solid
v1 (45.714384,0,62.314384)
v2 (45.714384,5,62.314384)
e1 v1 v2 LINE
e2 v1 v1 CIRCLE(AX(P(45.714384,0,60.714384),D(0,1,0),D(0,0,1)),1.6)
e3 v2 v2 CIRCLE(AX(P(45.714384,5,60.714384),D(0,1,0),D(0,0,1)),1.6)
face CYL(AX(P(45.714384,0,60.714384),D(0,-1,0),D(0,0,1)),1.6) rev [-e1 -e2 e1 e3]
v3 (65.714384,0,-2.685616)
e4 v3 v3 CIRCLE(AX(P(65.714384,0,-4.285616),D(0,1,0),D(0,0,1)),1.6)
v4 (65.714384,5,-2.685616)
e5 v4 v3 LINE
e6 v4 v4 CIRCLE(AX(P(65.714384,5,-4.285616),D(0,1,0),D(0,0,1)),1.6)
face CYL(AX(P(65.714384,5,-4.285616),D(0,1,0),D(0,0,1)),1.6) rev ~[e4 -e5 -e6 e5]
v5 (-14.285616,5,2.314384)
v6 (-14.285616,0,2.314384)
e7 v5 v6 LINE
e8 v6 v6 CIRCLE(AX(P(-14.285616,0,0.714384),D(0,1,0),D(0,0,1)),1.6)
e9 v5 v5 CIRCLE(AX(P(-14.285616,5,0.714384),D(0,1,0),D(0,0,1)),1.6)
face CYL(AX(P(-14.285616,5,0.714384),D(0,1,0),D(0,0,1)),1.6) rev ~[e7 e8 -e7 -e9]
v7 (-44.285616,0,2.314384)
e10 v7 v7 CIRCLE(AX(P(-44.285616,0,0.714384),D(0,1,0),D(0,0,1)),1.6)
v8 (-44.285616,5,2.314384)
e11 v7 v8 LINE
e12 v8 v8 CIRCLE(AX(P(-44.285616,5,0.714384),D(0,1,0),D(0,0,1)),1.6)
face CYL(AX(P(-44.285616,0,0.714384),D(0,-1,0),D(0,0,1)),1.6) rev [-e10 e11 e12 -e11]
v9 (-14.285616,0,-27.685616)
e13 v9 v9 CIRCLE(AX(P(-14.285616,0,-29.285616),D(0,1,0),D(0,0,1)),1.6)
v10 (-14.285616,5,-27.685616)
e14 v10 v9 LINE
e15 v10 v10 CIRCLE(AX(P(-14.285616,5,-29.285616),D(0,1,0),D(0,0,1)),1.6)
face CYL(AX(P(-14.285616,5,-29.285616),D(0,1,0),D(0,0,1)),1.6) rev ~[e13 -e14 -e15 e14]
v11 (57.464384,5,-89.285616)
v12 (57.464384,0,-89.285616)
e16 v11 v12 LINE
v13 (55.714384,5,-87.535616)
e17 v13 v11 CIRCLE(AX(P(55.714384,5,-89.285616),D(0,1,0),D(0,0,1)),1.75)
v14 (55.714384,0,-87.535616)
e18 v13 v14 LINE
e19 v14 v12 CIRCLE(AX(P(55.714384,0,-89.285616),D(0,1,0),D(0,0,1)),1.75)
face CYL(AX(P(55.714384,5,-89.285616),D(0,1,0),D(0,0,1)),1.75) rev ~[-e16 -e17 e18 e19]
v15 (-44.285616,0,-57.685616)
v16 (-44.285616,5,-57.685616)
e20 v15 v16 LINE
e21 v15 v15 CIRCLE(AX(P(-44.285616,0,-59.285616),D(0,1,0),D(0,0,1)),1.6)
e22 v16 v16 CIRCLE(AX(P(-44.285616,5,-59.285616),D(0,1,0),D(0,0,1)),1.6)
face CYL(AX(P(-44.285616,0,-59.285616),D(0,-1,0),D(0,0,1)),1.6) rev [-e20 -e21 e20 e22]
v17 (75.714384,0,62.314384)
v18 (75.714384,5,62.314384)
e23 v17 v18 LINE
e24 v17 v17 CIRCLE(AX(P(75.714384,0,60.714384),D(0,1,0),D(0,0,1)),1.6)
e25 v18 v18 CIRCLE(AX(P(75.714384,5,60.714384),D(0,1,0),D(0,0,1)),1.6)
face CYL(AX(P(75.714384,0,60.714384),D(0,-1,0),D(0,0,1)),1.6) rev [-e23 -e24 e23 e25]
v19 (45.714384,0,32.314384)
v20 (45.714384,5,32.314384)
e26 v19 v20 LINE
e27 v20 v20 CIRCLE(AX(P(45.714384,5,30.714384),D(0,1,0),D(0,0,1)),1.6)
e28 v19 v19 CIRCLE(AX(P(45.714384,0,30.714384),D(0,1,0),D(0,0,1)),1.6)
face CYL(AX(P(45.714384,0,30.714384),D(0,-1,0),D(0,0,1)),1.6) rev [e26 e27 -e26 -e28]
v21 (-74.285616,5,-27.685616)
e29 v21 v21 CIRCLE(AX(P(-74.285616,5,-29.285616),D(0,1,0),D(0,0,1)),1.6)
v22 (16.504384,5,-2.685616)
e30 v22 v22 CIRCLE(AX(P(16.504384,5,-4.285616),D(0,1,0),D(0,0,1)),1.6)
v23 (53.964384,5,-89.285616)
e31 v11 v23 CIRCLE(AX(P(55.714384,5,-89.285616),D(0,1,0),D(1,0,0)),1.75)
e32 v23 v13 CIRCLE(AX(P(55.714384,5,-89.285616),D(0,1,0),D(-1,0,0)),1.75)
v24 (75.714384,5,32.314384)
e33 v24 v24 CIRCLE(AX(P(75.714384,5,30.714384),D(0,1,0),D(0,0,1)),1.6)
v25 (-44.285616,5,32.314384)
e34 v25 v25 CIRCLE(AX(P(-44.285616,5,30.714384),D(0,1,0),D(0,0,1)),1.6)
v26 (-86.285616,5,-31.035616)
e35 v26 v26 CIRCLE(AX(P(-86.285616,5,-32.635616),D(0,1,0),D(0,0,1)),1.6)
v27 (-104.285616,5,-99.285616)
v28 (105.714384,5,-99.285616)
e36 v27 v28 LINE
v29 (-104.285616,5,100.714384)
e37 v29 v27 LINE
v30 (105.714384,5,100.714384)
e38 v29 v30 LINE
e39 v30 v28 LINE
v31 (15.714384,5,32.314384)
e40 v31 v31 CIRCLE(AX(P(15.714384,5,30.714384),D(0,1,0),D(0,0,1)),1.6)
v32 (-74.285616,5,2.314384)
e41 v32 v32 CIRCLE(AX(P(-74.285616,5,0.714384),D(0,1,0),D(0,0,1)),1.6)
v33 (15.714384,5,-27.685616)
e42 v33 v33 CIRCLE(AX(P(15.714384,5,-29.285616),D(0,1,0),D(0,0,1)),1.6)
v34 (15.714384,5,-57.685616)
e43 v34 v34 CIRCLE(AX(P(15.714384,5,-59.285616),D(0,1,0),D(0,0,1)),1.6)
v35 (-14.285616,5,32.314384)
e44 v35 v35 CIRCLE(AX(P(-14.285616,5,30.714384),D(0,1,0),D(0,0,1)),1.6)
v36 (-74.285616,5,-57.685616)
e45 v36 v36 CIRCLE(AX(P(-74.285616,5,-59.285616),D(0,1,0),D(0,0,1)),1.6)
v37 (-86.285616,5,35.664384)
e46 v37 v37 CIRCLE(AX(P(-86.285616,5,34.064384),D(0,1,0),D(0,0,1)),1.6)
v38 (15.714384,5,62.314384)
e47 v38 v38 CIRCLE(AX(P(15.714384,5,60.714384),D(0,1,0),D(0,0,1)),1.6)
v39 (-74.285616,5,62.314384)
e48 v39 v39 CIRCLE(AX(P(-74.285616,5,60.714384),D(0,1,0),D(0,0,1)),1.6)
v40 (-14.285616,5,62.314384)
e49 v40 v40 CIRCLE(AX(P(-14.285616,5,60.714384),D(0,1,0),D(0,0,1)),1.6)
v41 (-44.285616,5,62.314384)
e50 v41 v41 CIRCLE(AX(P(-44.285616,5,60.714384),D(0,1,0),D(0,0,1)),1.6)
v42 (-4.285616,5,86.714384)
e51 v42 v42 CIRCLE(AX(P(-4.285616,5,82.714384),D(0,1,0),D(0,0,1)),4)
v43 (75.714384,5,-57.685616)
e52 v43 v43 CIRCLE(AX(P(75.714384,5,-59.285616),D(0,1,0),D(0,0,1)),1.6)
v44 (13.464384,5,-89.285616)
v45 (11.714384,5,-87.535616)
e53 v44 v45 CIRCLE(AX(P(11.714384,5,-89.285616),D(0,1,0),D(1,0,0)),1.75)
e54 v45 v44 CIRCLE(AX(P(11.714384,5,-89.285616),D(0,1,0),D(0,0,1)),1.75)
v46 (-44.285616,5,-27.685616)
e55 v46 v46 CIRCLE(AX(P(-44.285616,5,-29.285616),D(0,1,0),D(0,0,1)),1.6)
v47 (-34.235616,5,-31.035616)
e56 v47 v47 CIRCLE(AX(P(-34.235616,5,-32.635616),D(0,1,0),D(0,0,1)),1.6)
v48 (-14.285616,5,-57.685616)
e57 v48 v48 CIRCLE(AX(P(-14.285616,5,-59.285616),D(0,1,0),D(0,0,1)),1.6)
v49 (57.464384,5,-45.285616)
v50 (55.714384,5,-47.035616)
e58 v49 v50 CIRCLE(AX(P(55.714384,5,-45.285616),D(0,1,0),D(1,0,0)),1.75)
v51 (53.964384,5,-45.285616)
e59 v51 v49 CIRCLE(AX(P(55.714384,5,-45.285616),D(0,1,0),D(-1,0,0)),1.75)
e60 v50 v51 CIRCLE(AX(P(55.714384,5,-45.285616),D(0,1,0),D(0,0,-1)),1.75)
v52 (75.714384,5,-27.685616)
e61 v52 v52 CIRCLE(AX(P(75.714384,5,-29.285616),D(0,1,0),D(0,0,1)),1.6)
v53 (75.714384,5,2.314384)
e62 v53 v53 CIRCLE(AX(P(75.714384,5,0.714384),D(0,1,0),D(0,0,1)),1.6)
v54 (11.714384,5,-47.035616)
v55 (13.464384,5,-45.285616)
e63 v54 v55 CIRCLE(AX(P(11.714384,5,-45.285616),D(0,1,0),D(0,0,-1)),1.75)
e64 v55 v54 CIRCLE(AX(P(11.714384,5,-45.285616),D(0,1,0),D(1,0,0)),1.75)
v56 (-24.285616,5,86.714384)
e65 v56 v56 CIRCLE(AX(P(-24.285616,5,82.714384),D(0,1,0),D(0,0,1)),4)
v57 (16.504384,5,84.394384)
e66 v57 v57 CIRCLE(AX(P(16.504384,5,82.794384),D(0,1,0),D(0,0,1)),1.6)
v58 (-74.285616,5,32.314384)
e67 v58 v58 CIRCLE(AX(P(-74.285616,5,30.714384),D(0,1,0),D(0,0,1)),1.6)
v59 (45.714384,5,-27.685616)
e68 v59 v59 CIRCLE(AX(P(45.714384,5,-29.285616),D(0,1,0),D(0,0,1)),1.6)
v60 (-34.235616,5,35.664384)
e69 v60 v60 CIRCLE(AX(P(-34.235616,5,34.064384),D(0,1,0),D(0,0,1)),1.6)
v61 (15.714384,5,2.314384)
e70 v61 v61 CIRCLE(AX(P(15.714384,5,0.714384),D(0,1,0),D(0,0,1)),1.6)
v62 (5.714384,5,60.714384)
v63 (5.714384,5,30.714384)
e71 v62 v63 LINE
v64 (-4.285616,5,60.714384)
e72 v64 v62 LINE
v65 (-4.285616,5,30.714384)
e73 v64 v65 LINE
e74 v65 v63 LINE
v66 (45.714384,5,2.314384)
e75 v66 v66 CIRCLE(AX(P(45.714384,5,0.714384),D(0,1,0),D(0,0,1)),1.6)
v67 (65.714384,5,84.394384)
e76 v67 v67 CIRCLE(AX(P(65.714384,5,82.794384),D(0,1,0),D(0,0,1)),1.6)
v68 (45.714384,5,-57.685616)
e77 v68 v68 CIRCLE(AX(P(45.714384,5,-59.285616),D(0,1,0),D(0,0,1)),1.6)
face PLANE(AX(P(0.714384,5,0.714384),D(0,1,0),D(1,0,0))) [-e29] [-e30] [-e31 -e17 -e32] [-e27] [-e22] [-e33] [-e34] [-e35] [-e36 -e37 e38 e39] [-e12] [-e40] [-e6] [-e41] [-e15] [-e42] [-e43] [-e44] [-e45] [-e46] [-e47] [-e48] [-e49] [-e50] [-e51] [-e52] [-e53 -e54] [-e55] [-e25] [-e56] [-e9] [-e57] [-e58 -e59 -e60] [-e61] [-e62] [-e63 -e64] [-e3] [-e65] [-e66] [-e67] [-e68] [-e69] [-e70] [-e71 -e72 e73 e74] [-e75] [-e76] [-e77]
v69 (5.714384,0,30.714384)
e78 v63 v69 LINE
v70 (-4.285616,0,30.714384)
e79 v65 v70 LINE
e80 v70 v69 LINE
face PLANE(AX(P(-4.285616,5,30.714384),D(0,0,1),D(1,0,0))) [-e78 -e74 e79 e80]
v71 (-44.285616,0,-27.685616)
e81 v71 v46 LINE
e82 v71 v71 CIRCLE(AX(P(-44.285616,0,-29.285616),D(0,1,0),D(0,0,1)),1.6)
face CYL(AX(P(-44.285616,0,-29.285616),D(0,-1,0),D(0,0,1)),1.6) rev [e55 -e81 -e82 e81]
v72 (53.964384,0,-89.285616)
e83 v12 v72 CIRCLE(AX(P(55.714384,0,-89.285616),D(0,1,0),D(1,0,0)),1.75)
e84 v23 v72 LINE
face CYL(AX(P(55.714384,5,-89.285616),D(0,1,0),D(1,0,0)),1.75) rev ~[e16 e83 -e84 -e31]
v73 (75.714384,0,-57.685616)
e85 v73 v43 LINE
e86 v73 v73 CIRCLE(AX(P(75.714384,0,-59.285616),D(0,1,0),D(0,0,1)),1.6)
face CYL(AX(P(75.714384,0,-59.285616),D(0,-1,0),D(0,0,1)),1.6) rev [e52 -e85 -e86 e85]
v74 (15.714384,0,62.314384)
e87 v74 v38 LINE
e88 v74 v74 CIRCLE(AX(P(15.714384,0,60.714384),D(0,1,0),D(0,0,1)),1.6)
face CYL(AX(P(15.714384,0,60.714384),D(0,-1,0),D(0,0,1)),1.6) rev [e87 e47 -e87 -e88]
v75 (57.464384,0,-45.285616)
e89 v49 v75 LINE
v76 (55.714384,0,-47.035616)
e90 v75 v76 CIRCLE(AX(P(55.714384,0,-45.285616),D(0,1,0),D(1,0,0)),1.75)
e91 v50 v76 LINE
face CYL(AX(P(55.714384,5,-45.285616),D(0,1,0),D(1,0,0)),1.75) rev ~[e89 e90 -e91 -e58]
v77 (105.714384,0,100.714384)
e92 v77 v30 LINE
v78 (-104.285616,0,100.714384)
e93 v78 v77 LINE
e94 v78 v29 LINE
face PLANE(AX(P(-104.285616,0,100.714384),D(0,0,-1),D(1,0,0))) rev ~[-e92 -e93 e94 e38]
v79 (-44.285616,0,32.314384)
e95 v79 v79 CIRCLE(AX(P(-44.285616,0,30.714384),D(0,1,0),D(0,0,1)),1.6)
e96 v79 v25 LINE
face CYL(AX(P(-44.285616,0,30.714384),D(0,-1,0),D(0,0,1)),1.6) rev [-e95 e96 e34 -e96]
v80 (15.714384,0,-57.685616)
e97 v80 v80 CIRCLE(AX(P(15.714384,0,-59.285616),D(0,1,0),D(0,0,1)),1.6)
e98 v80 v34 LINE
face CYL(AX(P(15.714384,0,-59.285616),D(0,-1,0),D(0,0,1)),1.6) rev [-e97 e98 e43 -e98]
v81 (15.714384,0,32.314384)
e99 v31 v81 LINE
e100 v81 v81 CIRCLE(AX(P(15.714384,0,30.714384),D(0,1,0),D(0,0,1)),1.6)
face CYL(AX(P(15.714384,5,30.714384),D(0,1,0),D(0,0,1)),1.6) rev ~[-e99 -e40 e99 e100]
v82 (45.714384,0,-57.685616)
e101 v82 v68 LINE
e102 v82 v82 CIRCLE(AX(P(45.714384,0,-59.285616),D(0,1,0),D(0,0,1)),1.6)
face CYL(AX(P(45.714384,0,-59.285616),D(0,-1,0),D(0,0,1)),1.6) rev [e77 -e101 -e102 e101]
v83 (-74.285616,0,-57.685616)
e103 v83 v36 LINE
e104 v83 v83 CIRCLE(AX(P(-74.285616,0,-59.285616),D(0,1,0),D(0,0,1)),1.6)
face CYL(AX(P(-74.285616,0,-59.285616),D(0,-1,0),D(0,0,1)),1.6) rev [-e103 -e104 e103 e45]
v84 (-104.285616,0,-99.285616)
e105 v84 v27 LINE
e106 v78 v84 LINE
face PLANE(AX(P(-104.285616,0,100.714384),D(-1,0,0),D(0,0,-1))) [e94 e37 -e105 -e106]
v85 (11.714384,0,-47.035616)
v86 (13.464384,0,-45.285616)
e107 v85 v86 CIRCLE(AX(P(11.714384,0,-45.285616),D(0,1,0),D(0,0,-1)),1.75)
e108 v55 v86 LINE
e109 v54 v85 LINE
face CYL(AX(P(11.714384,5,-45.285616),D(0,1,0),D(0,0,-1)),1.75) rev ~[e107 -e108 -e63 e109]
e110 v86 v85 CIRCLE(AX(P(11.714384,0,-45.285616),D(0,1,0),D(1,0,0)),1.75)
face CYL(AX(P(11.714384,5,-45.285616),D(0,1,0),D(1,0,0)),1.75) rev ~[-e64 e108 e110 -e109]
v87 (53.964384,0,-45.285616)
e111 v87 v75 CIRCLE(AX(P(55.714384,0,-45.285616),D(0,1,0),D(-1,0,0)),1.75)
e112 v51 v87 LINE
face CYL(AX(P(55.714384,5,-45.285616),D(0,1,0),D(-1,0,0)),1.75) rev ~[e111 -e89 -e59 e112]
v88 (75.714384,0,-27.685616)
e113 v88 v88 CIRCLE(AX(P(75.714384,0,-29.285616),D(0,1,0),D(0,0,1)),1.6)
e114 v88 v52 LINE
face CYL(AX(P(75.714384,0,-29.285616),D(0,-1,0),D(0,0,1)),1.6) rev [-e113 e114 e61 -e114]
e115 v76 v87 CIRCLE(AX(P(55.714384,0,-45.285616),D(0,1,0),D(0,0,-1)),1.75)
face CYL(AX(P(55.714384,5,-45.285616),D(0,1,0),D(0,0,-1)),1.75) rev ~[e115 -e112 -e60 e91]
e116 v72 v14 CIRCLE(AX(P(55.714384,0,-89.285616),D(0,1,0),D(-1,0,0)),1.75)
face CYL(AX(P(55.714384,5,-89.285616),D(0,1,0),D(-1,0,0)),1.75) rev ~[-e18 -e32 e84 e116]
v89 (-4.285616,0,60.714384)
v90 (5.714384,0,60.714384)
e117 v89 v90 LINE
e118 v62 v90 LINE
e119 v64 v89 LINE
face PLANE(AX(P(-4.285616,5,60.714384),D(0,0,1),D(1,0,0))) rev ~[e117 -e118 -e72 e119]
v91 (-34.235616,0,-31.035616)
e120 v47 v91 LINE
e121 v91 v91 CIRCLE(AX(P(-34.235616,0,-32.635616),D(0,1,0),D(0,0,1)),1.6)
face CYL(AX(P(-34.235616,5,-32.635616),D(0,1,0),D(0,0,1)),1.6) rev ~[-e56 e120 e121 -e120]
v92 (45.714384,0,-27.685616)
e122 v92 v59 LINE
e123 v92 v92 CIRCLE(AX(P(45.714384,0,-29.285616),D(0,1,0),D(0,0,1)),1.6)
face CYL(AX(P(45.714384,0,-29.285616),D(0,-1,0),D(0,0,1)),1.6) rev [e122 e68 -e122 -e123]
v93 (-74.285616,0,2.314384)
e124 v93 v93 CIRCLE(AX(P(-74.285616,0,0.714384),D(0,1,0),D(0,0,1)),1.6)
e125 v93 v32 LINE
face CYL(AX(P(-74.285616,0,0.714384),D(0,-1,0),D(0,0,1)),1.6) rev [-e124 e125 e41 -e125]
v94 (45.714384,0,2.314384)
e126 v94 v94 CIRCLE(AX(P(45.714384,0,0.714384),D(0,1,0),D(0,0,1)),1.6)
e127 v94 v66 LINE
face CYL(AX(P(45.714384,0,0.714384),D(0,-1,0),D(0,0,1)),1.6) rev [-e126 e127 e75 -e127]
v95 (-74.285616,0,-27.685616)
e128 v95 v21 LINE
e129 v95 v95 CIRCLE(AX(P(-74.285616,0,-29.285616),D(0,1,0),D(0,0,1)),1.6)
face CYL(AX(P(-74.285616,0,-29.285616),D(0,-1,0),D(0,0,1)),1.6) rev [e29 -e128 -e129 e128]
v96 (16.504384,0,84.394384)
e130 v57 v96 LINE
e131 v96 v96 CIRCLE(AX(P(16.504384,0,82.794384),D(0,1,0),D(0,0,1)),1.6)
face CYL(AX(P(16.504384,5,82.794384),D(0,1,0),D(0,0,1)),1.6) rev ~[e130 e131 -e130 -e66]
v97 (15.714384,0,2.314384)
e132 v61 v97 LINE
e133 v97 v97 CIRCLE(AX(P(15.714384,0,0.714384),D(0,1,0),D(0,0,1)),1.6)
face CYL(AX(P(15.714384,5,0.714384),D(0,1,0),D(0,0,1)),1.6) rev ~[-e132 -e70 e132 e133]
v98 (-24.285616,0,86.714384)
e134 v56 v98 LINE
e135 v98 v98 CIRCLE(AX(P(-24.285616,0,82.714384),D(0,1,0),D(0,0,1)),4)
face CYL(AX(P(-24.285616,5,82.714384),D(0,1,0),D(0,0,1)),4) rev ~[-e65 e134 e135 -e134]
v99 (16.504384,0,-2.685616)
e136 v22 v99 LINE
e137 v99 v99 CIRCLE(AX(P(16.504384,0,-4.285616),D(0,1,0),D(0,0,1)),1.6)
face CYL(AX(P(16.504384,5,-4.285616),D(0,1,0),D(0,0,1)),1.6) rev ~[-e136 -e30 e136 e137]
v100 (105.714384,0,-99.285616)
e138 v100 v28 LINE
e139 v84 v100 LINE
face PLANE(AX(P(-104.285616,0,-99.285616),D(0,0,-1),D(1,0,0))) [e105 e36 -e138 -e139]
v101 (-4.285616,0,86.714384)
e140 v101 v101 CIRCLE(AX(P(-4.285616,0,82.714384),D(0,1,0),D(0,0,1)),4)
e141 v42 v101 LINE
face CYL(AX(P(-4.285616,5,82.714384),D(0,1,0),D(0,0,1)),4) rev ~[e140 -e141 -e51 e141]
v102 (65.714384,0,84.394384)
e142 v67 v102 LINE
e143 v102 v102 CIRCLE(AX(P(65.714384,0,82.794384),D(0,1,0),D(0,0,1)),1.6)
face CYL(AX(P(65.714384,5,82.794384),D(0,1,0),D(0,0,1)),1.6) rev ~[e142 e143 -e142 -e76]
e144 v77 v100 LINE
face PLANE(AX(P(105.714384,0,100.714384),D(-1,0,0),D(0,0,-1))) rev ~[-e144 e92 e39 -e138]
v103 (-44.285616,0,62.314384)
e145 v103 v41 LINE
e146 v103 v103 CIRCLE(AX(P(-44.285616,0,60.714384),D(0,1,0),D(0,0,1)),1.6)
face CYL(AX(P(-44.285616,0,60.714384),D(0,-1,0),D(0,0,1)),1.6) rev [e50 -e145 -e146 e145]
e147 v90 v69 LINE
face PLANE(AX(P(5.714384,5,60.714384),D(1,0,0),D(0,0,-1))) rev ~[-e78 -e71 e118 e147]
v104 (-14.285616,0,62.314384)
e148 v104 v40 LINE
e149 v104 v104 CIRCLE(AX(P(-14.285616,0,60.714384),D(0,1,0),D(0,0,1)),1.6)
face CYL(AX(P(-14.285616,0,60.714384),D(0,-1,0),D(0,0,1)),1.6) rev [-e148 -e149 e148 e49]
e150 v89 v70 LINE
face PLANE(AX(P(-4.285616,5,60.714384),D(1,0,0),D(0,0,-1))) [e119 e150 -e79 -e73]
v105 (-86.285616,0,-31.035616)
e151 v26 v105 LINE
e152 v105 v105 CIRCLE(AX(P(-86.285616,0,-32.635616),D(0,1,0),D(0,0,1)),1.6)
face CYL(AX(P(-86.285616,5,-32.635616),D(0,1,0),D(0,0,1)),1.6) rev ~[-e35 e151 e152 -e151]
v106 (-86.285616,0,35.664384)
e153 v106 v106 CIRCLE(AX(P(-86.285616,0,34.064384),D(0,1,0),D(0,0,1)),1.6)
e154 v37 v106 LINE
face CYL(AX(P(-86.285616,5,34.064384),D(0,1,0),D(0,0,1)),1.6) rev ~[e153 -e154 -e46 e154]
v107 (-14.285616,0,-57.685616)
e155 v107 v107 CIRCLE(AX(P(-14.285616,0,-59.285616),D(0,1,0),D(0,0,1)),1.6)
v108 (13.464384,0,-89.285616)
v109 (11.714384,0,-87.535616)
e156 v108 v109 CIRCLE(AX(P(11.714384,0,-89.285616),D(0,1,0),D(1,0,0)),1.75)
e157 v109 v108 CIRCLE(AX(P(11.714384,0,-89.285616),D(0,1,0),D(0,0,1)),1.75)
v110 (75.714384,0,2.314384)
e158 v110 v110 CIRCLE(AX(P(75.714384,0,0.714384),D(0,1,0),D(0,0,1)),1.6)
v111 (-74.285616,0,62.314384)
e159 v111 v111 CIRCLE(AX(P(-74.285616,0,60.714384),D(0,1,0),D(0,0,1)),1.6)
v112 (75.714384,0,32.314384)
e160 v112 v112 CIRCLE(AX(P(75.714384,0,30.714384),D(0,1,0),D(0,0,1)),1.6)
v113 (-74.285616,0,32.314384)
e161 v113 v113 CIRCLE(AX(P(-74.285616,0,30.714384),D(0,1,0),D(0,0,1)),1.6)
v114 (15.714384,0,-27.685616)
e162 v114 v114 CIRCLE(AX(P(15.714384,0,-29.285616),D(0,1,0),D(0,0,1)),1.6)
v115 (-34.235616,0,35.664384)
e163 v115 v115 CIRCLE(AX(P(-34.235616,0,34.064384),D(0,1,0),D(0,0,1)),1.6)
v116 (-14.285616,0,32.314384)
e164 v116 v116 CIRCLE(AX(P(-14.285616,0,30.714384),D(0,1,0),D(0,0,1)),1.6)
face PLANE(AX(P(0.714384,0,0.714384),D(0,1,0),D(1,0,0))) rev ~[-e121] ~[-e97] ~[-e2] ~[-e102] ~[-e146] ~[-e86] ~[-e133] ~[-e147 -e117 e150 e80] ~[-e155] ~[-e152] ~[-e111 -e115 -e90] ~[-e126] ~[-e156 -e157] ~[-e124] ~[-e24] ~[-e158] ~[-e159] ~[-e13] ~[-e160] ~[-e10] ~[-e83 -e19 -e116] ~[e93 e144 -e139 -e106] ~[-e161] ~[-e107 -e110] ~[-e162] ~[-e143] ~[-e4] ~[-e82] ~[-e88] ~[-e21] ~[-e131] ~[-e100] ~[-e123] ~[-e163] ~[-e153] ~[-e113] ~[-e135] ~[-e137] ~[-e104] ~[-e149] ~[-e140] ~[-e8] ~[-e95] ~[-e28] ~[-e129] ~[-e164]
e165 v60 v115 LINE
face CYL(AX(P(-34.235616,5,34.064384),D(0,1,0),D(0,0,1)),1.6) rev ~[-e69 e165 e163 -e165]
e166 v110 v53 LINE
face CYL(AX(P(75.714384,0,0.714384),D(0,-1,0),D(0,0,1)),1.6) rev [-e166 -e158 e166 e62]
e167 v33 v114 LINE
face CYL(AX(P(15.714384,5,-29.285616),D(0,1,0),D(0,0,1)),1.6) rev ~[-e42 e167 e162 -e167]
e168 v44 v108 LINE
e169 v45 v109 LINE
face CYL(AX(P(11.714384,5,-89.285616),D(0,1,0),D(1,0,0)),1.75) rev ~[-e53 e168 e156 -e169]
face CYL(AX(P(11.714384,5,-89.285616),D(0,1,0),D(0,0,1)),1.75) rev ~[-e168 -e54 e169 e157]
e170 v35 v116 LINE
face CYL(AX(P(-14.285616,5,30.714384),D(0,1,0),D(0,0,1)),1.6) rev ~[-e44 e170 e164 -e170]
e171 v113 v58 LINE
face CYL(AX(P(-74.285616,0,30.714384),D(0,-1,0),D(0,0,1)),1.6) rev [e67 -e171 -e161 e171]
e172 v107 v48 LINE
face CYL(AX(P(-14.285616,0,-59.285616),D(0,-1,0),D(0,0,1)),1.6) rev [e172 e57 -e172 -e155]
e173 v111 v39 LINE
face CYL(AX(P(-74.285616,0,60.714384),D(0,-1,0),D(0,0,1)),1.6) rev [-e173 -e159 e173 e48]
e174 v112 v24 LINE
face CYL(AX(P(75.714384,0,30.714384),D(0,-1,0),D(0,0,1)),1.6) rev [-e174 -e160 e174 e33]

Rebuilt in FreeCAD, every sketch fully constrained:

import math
import FreeCAD as App
import Part
import Sketcher

V = App.Vector


def add_polygon(sketch, points):
    """Adds a closed chain of lines whose ends are joined by coincident constraints."""
    first, n = sketch.GeometryCount, len(points)
    for a, b in zip(points, points[1:] + points[:1]):
        sketch.addGeometry(Part.LineSegment(App.Vector(*a, 0), App.Vector(*b, 0)), False)
    for i in range(n):
        sketch.addConstraint(Sketcher.Constraint("Coincident", first + i, 2, first + (i + 1) % n, 1))

doc = App.newDocument("Part")
body = doc.addObject("PartDesign::Body", "Body")

sketch1 = body.newObject("Sketcher::SketchObject", "Sketch")
sketch1.AttachmentSupport = (doc.getObject("XZ_Plane"), [""])
sketch1.MapMode = "FlatFace"
add_polygon(sketch1, [(-104.3, -99.3), (-104.3, 100.7), (105.7, 100.7), (105.7, -99.3)])
sketch1.addGeometry(Part.Circle(V(-74.3, 60.7, 0), V(0, 0, 1), 1.6), False)
sketch1.addGeometry(Part.Circle(V(-44.3, 60.7, 0), V(0, 0, 1), 1.6), False)
sketch1.addGeometry(Part.Circle(V(-14.3, 60.7, 0), V(0, 0, 1), 1.6), False)
sketch1.addGeometry(Part.Circle(V(-74.3, 30.7, 0), V(0, 0, 1), 1.6), False)
sketch1.addGeometry(Part.Circle(V(-44.3, 30.7, 0), V(0, 0, 1), 1.6), False)
sketch1.addGeometry(Part.Circle(V(-74.3, 0.7, 0), V(0, 0, 1), 1.6), False)
sketch1.addGeometry(Part.Circle(V(-44.3, 0.7, 0), V(0, 0, 1), 1.6), False)
sketch1.addGeometry(Part.Circle(V(15.7, 60.7, 0), V(0, 0, 1), 1.6), False)
sketch1.addGeometry(Part.Circle(V(45.7, 60.7, 0), V(0, 0, 1), 1.6), False)
sketch1.addGeometry(Part.Circle(V(75.7, 60.7, 0), V(0, 0, 1), 1.6), False)
sketch1.addGeometry(Part.Circle(V(45.7, 30.7, 0), V(0, 0, 1), 1.6), False)
sketch1.addGeometry(Part.Circle(V(75.7, 30.7, 0), V(0, 0, 1), 1.6), False)
sketch1.addGeometry(Part.Circle(V(45.7, 0.7, 0), V(0, 0, 1), 1.6), False)
sketch1.addGeometry(Part.Circle(V(75.7, 0.7, 0), V(0, 0, 1), 1.6), False)
sketch1.addGeometry(Part.Circle(V(-74.3, -29.3, 0), V(0, 0, 1), 1.6), False)
sketch1.addGeometry(Part.Circle(V(-44.3, -29.3, 0), V(0, 0, 1), 1.6), False)
sketch1.addGeometry(Part.Circle(V(-74.3, -59.3, 0), V(0, 0, 1), 1.6), False)
sketch1.addGeometry(Part.Circle(V(-44.3, -59.3, 0), V(0, 0, 1), 1.6), False)
sketch1.addGeometry(Part.Circle(V(-14.3, -59.3, 0), V(0, 0, 1), 1.6), False)
sketch1.addGeometry(Part.Circle(V(45.7, -29.3, 0), V(0, 0, 1), 1.6), False)
sketch1.addGeometry(Part.Circle(V(75.7, -29.3, 0), V(0, 0, 1), 1.6), False)
sketch1.addGeometry(Part.Circle(V(15.7, -59.3, 0), V(0, 0, 1), 1.6), False)
sketch1.addGeometry(Part.Circle(V(45.7, -59.3, 0), V(0, 0, 1), 1.6), False)
sketch1.addGeometry(Part.Circle(V(75.7, -59.3, 0), V(0, 0, 1), 1.6), False)
sketch1.addConstraint(Sketcher.Constraint("Vertical", 0))
sketch1.addConstraint(Sketcher.Constraint("Horizontal", 1))
sketch1.addConstraint(Sketcher.Constraint("Vertical", 2))
sketch1.addConstraint(Sketcher.Constraint("Horizontal", 3))
sketch1.addConstraint(Sketcher.Constraint("Equal", 4, 5))
sketch1.addConstraint(Sketcher.Constraint("Equal", 5, 6))
sketch1.addConstraint(Sketcher.Constraint("Equal", 6, 7))
sketch1.addConstraint(Sketcher.Constraint("Equal", 7, 8))
sketch1.addConstraint(Sketcher.Constraint("Equal", 8, 9))
sketch1.addConstraint(Sketcher.Constraint("Equal", 9, 10))
sketch1.addConstraint(Sketcher.Constraint("Equal", 10, 11))
sketch1.addConstraint(Sketcher.Constraint("Equal", 11, 12))
sketch1.addConstraint(Sketcher.Constraint("Equal", 12, 13))
sketch1.addConstraint(Sketcher.Constraint("Equal", 13, 14))
sketch1.addConstraint(Sketcher.Constraint("Equal", 14, 15))
sketch1.addConstraint(Sketcher.Constraint("Equal", 15, 16))
sketch1.addConstraint(Sketcher.Constraint("Equal", 16, 17))
sketch1.addConstraint(Sketcher.Constraint("Equal", 17, 18))
sketch1.addConstraint(Sketcher.Constraint("Equal", 18, 19))
sketch1.addConstraint(Sketcher.Constraint("Equal", 19, 20))
sketch1.addConstraint(Sketcher.Constraint("Equal", 20, 21))
sketch1.addConstraint(Sketcher.Constraint("Equal", 21, 22))
sketch1.addConstraint(Sketcher.Constraint("Equal", 22, 23))
sketch1.addConstraint(Sketcher.Constraint("Equal", 23, 24))
sketch1.addConstraint(Sketcher.Constraint("Equal", 24, 25))
sketch1.addConstraint(Sketcher.Constraint("Equal", 25, 26))
sketch1.addConstraint(Sketcher.Constraint("Equal", 26, 27))
sketch1.addConstraint(Sketcher.Constraint("Horizontal", 4, 3, 5, 3))
sketch1.addConstraint(Sketcher.Constraint("Horizontal", 5, 3, 6, 3))
sketch1.addConstraint(Sketcher.Constraint("Horizontal", 7, 3, 8, 3))
sketch1.addConstraint(Sketcher.Constraint("Horizontal", 9, 3, 10, 3))
sketch1.addConstraint(Sketcher.Constraint("Horizontal", 6, 3, 11, 3))
sketch1.addConstraint(Sketcher.Constraint("Horizontal", 11, 3, 12, 3))
sketch1.addConstraint(Sketcher.Constraint("Horizontal", 12, 3, 13, 3))
sketch1.addConstraint(Sketcher.Constraint("Horizontal", 8, 3, 14, 3))
sketch1.addConstraint(Sketcher.Constraint("Horizontal", 14, 3, 15, 3))
sketch1.addConstraint(Sketcher.Constraint("Horizontal", 10, 3, 16, 3))
sketch1.addConstraint(Sketcher.Constraint("Horizontal", 16, 3, 17, 3))
sketch1.addConstraint(Sketcher.Constraint("Horizontal", 18, 3, 19, 3))
sketch1.addConstraint(Sketcher.Constraint("Horizontal", 20, 3, 21, 3))
sketch1.addConstraint(Sketcher.Constraint("Horizontal", 21, 3, 22, 3))
sketch1.addConstraint(Sketcher.Constraint("Horizontal", 19, 3, 23, 3))
sketch1.addConstraint(Sketcher.Constraint("Horizontal", 23, 3, 24, 3))
sketch1.addConstraint(Sketcher.Constraint("Horizontal", 22, 3, 25, 3))
sketch1.addConstraint(Sketcher.Constraint("Horizontal", 25, 3, 26, 3))
sketch1.addConstraint(Sketcher.Constraint("Horizontal", 26, 3, 27, 3))
sketch1.addConstraint(Sketcher.Constraint("Vertical", 4, 3, 7, 3))
sketch1.addConstraint(Sketcher.Constraint("Vertical", 5, 3, 8, 3))
sketch1.addConstraint(Sketcher.Constraint("Vertical", 7, 3, 9, 3))
sketch1.addConstraint(Sketcher.Constraint("Vertical", 8, 3, 10, 3))
sketch1.addConstraint(Sketcher.Constraint("Vertical", 12, 3, 14, 3))
sketch1.addConstraint(Sketcher.Constraint("Vertical", 13, 3, 15, 3))
sketch1.addConstraint(Sketcher.Constraint("Vertical", 14, 3, 16, 3))
sketch1.addConstraint(Sketcher.Constraint("Vertical", 15, 3, 17, 3))
sketch1.addConstraint(Sketcher.Constraint("Vertical", 9, 3, 18, 3))
sketch1.addConstraint(Sketcher.Constraint("Vertical", 10, 3, 19, 3))
sketch1.addConstraint(Sketcher.Constraint("Vertical", 18, 3, 20, 3))
sketch1.addConstraint(Sketcher.Constraint("Vertical", 19, 3, 21, 3))
sketch1.addConstraint(Sketcher.Constraint("Vertical", 6, 3, 22, 3))
sketch1.addConstraint(Sketcher.Constraint("Vertical", 16, 3, 23, 3))
sketch1.addConstraint(Sketcher.Constraint("Vertical", 17, 3, 24, 3))
sketch1.addConstraint(Sketcher.Constraint("Vertical", 11, 3, 25, 3))
sketch1.addConstraint(Sketcher.Constraint("Vertical", 23, 3, 26, 3))
sketch1.addConstraint(Sketcher.Constraint("Vertical", 24, 3, 27, 3))
sketch1.addConstraint(Sketcher.Constraint("Diameter", 4, 3.2))
sketch1.addConstraint(Sketcher.Constraint("DistanceX", 1, 1, 1, 2, 210.0))
sketch1.addConstraint(Sketcher.Constraint("DistanceY", 0, 1, 0, 2, 200.0))
sketch1.addConstraint(Sketcher.Constraint("DistanceX", 4, 3, 5, 3, 30.0))
sketch1.addConstraint(Sketcher.Constraint("DistanceX", 5, 3, 6, 3, 30.0))
sketch1.addConstraint(Sketcher.Constraint("DistanceY", 7, 3, 4, 3, 30.0))
sketch1.addConstraint(Sketcher.Constraint("DistanceY", 9, 3, 7, 3, 30.0))
sketch1.addConstraint(Sketcher.Constraint("DistanceX", 6, 3, 11, 3, 30.0))
sketch1.addConstraint(Sketcher.Constraint("DistanceX", 11, 3, 12, 3, 30.0))
sketch1.addConstraint(Sketcher.Constraint("DistanceX", 12, 3, 13, 3, 30.0))
sketch1.addConstraint(Sketcher.Constraint("DistanceY", 18, 3, 9, 3, 30.0))
sketch1.addConstraint(Sketcher.Constraint("DistanceY", 20, 3, 18, 3, 30.0))
sketch1.addConstraint(Sketcher.Constraint("DistanceX", 0, 2, 4, 3, 30.0))
sketch1.addConstraint(Sketcher.Constraint("DistanceY", 4, 3, 0, 2, 40.0))
sketch1.addConstraint(Sketcher.Constraint("DistanceX", 4, 3, -1, 1, 74.285616))
sketch1.addConstraint(Sketcher.Constraint("DistanceY", -1, 1, 4, 3, 60.714384))
pad1 = body.newObject("PartDesign::Pad", "Pad")
pad1.Profile = sketch1
pad1.Length = 5
pad1.Reversed = True

sketch2 = body.newObject("Sketcher::SketchObject", "Sketch001")
sketch2.AttachmentSupport = (doc.getObject("XZ_Plane"), [""])
sketch2.MapMode = "FlatFace"
sketch2.AttachmentOffset = App.Placement(V(0, 0, -5), App.Rotation())
sketch2.addGeometry(Part.Circle(V(-86.3, 34.1, 0), V(0, 0, 1), 1.6), False)
sketch2.addGeometry(Part.Circle(V(-34.2, -32.6, 0), V(0, 0, 1), 1.6), False)
sketch2.addGeometry(Part.Circle(V(-34.2, 34.1, 0), V(0, 0, 1), 1.6), False)
sketch2.addGeometry(Part.Circle(V(-86.3, -32.6, 0), V(0, 0, 1), 1.6), False)
sketch2.addGeometry(Part.Circle(V(16.5, 82.8, 0), V(0, 0, 1), 1.6), False)
sketch2.addGeometry(Part.Circle(V(65.7, -4.3, 0), V(0, 0, 1), 1.6), False)
sketch2.addGeometry(Part.Circle(V(65.7, 82.8, 0), V(0, 0, 1), 1.6), False)
sketch2.addGeometry(Part.Circle(V(16.5, -4.3, 0), V(0, 0, 1), 1.6), False)
sketch2.addConstraint(Sketcher.Constraint("Equal", 0, 1))
sketch2.addConstraint(Sketcher.Constraint("Equal", 1, 2))
sketch2.addConstraint(Sketcher.Constraint("Equal", 2, 3))
sketch2.addConstraint(Sketcher.Constraint("Equal", 3, 4))
sketch2.addConstraint(Sketcher.Constraint("Equal", 4, 5))
sketch2.addConstraint(Sketcher.Constraint("Equal", 5, 6))
sketch2.addConstraint(Sketcher.Constraint("Equal", 6, 7))
sketch2.addConstraint(Sketcher.Constraint("Horizontal", 0, 3, 2, 3))
sketch2.addConstraint(Sketcher.Constraint("Horizontal", 1, 3, 3, 3))
sketch2.addConstraint(Sketcher.Constraint("Horizontal", 4, 3, 6, 3))
sketch2.addConstraint(Sketcher.Constraint("Horizontal", 5, 3, 7, 3))
sketch2.addConstraint(Sketcher.Constraint("Vertical", 1, 3, 2, 3))
sketch2.addConstraint(Sketcher.Constraint("Vertical", 0, 3, 3, 3))
sketch2.addConstraint(Sketcher.Constraint("Vertical", 5, 3, 6, 3))
sketch2.addConstraint(Sketcher.Constraint("Vertical", 4, 3, 7, 3))
sketch2.addConstraint(Sketcher.Constraint("Diameter", 0, 3.2))
sketch2.addConstraint(Sketcher.Constraint("DistanceX", 3, 3, 5, 3, 152.0))
sketch2.addConstraint(Sketcher.Constraint("DistanceY", 1, 3, 0, 3, 66.7))
sketch2.addConstraint(Sketcher.Constraint("DistanceX", 0, 3, 1, 3, 52.05))
sketch2.addConstraint(Sketcher.Constraint("DistanceX", 2, 3, 4, 3, 50.74))
sketch2.addConstraint(Sketcher.Constraint("DistanceY", 2, 3, 4, 3, 48.73))
sketch2.addConstraint(Sketcher.Constraint("DistanceY", 5, 3, 4, 3, 87.08))
sketch2.addConstraint(Sketcher.Constraint("DistanceX", 0, 3, -1, 1, 86.285616))
sketch2.addConstraint(Sketcher.Constraint("DistanceY", -1, 1, 0, 3, 34.064384))
pocket1 = body.newObject("PartDesign::Pocket", "Pocket")
pocket1.Profile = sketch2
pocket1.Length = 5
pocket1.Reversed = True

sketch3 = body.newObject("Sketcher::SketchObject", "Sketch002")
sketch3.AttachmentSupport = (doc.getObject("XZ_Plane"), [""])
sketch3.MapMode = "FlatFace"
sketch3.AttachmentOffset = App.Placement(V(0, 0, -5), App.Rotation())
sketch3.addGeometry(Part.Circle(V(65.7, 82.8, 0), V(0, 0, 1), 1.6), False)
sketch3.addGeometry(Part.Circle(V(-4.3, 82.7, 0), V(0, 0, 1), 4), False)
sketch3.addGeometry(Part.Circle(V(-24.3, 82.7, 0), V(0, 0, 1), 4), False)
sketch3.addConstraint(Sketcher.Constraint("Equal", 1, 2))
sketch3.addConstraint(Sketcher.Constraint("Horizontal", 1, 3, 2, 3))
sketch3.addConstraint(Sketcher.Constraint("Diameter", 1, 8.0))
sketch3.addConstraint(Sketcher.Constraint("Diameter", 0, 3.2))
sketch3.addConstraint(Sketcher.Constraint("DistanceX", 1, 3, 0, 3, 70.0))
sketch3.addConstraint(Sketcher.Constraint("DistanceX", 2, 3, 1, 3, 20.0))
sketch3.addConstraint(Sketcher.Constraint("DistanceY", 1, 3, 0, 3, 0.08))
sketch3.addConstraint(Sketcher.Constraint("DistanceX", -1, 1, 0, 3, 65.714384))
sketch3.addConstraint(Sketcher.Constraint("DistanceY", -1, 1, 0, 3, 82.794384))
pocket2 = body.newObject("PartDesign::Pocket", "Pocket001")
pocket2.Profile = sketch3
pocket2.Length = 5
pocket2.Reversed = True

sketch4 = body.newObject("Sketcher::SketchObject", "Sketch003")
sketch4.AttachmentSupport = (doc.getObject("XZ_Plane"), [""])
sketch4.MapMode = "FlatFace"
sketch4.AttachmentOffset = App.Placement(V(0, 0, -5), App.Rotation())
sketch4.addGeometry(Part.Circle(V(-14.3, -59.3, 0), V(0, 0, 1), 1.6), False)
sketch4.addGeometry(Part.Circle(V(15.7, -59.3, 0), V(0, 0, 1), 1.6), False)
sketch4.addGeometry(Part.Circle(V(-14.3, -29.3, 0), V(0, 0, 1), 1.6), False)
sketch4.addGeometry(Part.Circle(V(15.7, -29.3, 0), V(0, 0, 1), 1.6), False)
sketch4.addGeometry(Part.Circle(V(-14.3, 0.7, 0), V(0, 0, 1), 1.6), False)
sketch4.addGeometry(Part.Circle(V(15.7, 0.7, 0), V(0, 0, 1), 1.6), False)
sketch4.addGeometry(Part.Circle(V(-14.3, 30.7, 0), V(0, 0, 1), 1.6), False)
sketch4.addGeometry(Part.Circle(V(15.7, 30.7, 0), V(0, 0, 1), 1.6), False)
sketch4.addConstraint(Sketcher.Constraint("Equal", 0, 1))
sketch4.addConstraint(Sketcher.Constraint("Equal", 1, 2))
sketch4.addConstraint(Sketcher.Constraint("Equal", 2, 3))
sketch4.addConstraint(Sketcher.Constraint("Equal", 3, 4))
sketch4.addConstraint(Sketcher.Constraint("Equal", 4, 5))
sketch4.addConstraint(Sketcher.Constraint("Equal", 5, 6))
sketch4.addConstraint(Sketcher.Constraint("Equal", 6, 7))
sketch4.addConstraint(Sketcher.Constraint("Horizontal", 0, 3, 1, 3))
sketch4.addConstraint(Sketcher.Constraint("Horizontal", 2, 3, 3, 3))
sketch4.addConstraint(Sketcher.Constraint("Horizontal", 4, 3, 5, 3))
sketch4.addConstraint(Sketcher.Constraint("Horizontal", 6, 3, 7, 3))
sketch4.addConstraint(Sketcher.Constraint("Vertical", 0, 3, 2, 3))
sketch4.addConstraint(Sketcher.Constraint("Vertical", 1, 3, 3, 3))
sketch4.addConstraint(Sketcher.Constraint("Vertical", 2, 3, 4, 3))
sketch4.addConstraint(Sketcher.Constraint("Vertical", 3, 3, 5, 3))
sketch4.addConstraint(Sketcher.Constraint("Vertical", 4, 3, 6, 3))
sketch4.addConstraint(Sketcher.Constraint("Vertical", 5, 3, 7, 3))
sketch4.addConstraint(Sketcher.Constraint("Diameter", 0, 3.2))
sketch4.addConstraint(Sketcher.Constraint("DistanceX", 0, 3, 1, 3, 30.0))
sketch4.addConstraint(Sketcher.Constraint("DistanceY", 0, 3, 2, 3, 30.0))
sketch4.addConstraint(Sketcher.Constraint("DistanceY", 2, 3, 4, 3, 30.0))
sketch4.addConstraint(Sketcher.Constraint("DistanceY", 4, 3, 6, 3, 30.0))
sketch4.addConstraint(Sketcher.Constraint("DistanceX", 0, 3, -1, 1, 14.285616))
sketch4.addConstraint(Sketcher.Constraint("DistanceY", 0, 3, -1, 1, 59.285616))
pocket3 = body.newObject("PartDesign::Pocket", "Pocket002")
pocket3.Profile = sketch4
pocket3.Type = "ThroughAll"
pocket3.Reversed = True

sketch5 = body.newObject("Sketcher::SketchObject", "Sketch004")
sketch5.AttachmentSupport = (doc.getObject("XZ_Plane"), [""])
sketch5.MapMode = "FlatFace"
sketch5.AttachmentOffset = App.Placement(V(0, 0, -5), App.Rotation())
add_polygon(sketch5, [(-4, 31), (-4, 61), (6, 61), (6, 31)])
sketch5.addConstraint(Sketcher.Constraint("Vertical", 0))
sketch5.addConstraint(Sketcher.Constraint("Horizontal", 1))
sketch5.addConstraint(Sketcher.Constraint("Vertical", 2))
sketch5.addConstraint(Sketcher.Constraint("Horizontal", 3))
sketch5.addConstraint(Sketcher.Constraint("DistanceX", 1, 1, 1, 2, 10.0))
sketch5.addConstraint(Sketcher.Constraint("DistanceY", 0, 1, 0, 2, 30.0))
sketch5.addConstraint(Sketcher.Constraint("DistanceX", 0, 2, -1, 1, 4.285616))
sketch5.addConstraint(Sketcher.Constraint("DistanceY", -1, 1, 0, 2, 60.714384))
pocket4 = body.newObject("PartDesign::Pocket", "Pocket003")
pocket4.Profile = sketch5
pocket4.Type = "ThroughAll"
pocket4.Reversed = True

sketch6 = body.newObject("Sketcher::SketchObject", "Sketch005")
sketch6.AttachmentSupport = (doc.getObject("XZ_Plane"), [""])
sketch6.MapMode = "FlatFace"
sketch6.AttachmentOffset = App.Placement(V(0, 0, -5), App.Rotation())
sketch6.addGeometry(Part.ArcOfCircle(Part.Circle(V(11.7, -89.3, 0), V(0, 0, 1), 1.8), math.radians(90), math.radians(360)), False)
sketch6.addGeometry(Part.ArcOfCircle(Part.Circle(V(11.7, -89.3, 0), V(0, 0, 1), 1.8), math.radians(0), math.radians(90)), False)
sketch6.addGeometry(Part.ArcOfCircle(Part.Circle(V(11.7, -45.3, 0), V(0, 0, 1), 1.8), math.radians(-90), math.radians(0)), False)
sketch6.addGeometry(Part.ArcOfCircle(Part.Circle(V(11.7, -45.3, 0), V(0, 0, 1), 1.8), math.radians(0), math.radians(270)), False)
sketch6.addGeometry(Part.ArcOfCircle(Part.Circle(V(55.7, -45.3, 0), V(0, 0, 1), 1.8), math.radians(-90), math.radians(0)), False)
sketch6.addGeometry(Part.ArcOfCircle(Part.Circle(V(55.7, -45.3, 0), V(0, 0, 1), 1.8), math.radians(180), math.radians(270)), False)
sketch6.addGeometry(Part.ArcOfCircle(Part.Circle(V(55.7, -45.3, 0), V(0, 0, 1), 1.8), math.radians(0), math.radians(180)), False)
sketch6.addGeometry(Part.ArcOfCircle(Part.Circle(V(55.7, -89.3, 0), V(0, 0, 1), 1.8), math.radians(180), math.radians(360)), False)
sketch6.addGeometry(Part.ArcOfCircle(Part.Circle(V(55.7, -89.3, 0), V(0, 0, 1), 1.8), math.radians(90), math.radians(180)), False)
sketch6.addGeometry(Part.ArcOfCircle(Part.Circle(V(55.7, -89.3, 0), V(0, 0, 1), 1.8), math.radians(0), math.radians(90)), False)
sketch6.addConstraint(Sketcher.Constraint("Tangent", 0, 1, 1, 2))
sketch6.addConstraint(Sketcher.Constraint("Coincident", 1, 1, 0, 2))
sketch6.addConstraint(Sketcher.Constraint("Tangent", 2, 1, 3, 2))
sketch6.addConstraint(Sketcher.Constraint("Coincident", 3, 1, 2, 2))
sketch6.addConstraint(Sketcher.Constraint("Tangent", 4, 1, 5, 2))
sketch6.addConstraint(Sketcher.Constraint("Tangent", 5, 1, 6, 2))
sketch6.addConstraint(Sketcher.Constraint("Tangent", 6, 1, 4, 2))
sketch6.addConstraint(Sketcher.Constraint("Tangent", 7, 1, 8, 2))
sketch6.addConstraint(Sketcher.Constraint("Tangent", 8, 1, 9, 2))
sketch6.addConstraint(Sketcher.Constraint("Tangent", 9, 1, 7, 2))
sketch6.addConstraint(Sketcher.Constraint("Equal", 1, 2))
sketch6.addConstraint(Sketcher.Constraint("Equal", 3, 4))
sketch6.addConstraint(Sketcher.Constraint("Equal", 6, 7))
sketch6.addConstraint(Sketcher.Constraint("Horizontal", 3, 3, 4, 3))
sketch6.addConstraint(Sketcher.Constraint("Horizontal", 1, 3, 7, 3))
sketch6.addConstraint(Sketcher.Constraint("Horizontal", 9, 3, 1, 1))
sketch6.addConstraint(Sketcher.Constraint("Horizontal", 6, 3, 3, 1))
sketch6.addConstraint(Sketcher.Constraint("Horizontal", 3, 1, 5, 1))
sketch6.addConstraint(Sketcher.Constraint("Horizontal", 5, 1, 6, 1))
sketch6.addConstraint(Sketcher.Constraint("Horizontal", 1, 1, 7, 1))
sketch6.addConstraint(Sketcher.Constraint("Horizontal", 7, 1, 9, 1))
sketch6.addConstraint(Sketcher.Constraint("Vertical", 1, 3, 2, 3))
sketch6.addConstraint(Sketcher.Constraint("Vertical", 6, 3, 7, 3))
sketch6.addConstraint(Sketcher.Constraint("Vertical", 3, 3, 0, 1))
sketch6.addConstraint(Sketcher.Constraint("Vertical", 0, 1, 2, 1))
sketch6.addConstraint(Sketcher.Constraint("Vertical", 9, 3, 4, 1))
sketch6.addConstraint(Sketcher.Constraint("Vertical", 4, 1, 8, 1))
sketch6.addConstraint(Sketcher.Constraint("Radius", 0, 1.75))
sketch6.addConstraint(Sketcher.Constraint("DistanceY", 0, 3, 2, 3, 44.0))
sketch6.addConstraint(Sketcher.Constraint("DistanceX", 2, 3, 4, 3, 44.0))
sketch6.addConstraint(Sketcher.Constraint("DistanceX", -1, 1, 0, 3, 11.714384))
sketch6.addConstraint(Sketcher.Constraint("DistanceY", 0, 3, -1, 1, 89.285616))
pocket5 = body.newObject("PartDesign::Pocket", "Pocket004")
pocket5.Profile = sketch6
pocket5.Type = "ThroughAll"
pocket5.Reversed = True

doc.recompute()
